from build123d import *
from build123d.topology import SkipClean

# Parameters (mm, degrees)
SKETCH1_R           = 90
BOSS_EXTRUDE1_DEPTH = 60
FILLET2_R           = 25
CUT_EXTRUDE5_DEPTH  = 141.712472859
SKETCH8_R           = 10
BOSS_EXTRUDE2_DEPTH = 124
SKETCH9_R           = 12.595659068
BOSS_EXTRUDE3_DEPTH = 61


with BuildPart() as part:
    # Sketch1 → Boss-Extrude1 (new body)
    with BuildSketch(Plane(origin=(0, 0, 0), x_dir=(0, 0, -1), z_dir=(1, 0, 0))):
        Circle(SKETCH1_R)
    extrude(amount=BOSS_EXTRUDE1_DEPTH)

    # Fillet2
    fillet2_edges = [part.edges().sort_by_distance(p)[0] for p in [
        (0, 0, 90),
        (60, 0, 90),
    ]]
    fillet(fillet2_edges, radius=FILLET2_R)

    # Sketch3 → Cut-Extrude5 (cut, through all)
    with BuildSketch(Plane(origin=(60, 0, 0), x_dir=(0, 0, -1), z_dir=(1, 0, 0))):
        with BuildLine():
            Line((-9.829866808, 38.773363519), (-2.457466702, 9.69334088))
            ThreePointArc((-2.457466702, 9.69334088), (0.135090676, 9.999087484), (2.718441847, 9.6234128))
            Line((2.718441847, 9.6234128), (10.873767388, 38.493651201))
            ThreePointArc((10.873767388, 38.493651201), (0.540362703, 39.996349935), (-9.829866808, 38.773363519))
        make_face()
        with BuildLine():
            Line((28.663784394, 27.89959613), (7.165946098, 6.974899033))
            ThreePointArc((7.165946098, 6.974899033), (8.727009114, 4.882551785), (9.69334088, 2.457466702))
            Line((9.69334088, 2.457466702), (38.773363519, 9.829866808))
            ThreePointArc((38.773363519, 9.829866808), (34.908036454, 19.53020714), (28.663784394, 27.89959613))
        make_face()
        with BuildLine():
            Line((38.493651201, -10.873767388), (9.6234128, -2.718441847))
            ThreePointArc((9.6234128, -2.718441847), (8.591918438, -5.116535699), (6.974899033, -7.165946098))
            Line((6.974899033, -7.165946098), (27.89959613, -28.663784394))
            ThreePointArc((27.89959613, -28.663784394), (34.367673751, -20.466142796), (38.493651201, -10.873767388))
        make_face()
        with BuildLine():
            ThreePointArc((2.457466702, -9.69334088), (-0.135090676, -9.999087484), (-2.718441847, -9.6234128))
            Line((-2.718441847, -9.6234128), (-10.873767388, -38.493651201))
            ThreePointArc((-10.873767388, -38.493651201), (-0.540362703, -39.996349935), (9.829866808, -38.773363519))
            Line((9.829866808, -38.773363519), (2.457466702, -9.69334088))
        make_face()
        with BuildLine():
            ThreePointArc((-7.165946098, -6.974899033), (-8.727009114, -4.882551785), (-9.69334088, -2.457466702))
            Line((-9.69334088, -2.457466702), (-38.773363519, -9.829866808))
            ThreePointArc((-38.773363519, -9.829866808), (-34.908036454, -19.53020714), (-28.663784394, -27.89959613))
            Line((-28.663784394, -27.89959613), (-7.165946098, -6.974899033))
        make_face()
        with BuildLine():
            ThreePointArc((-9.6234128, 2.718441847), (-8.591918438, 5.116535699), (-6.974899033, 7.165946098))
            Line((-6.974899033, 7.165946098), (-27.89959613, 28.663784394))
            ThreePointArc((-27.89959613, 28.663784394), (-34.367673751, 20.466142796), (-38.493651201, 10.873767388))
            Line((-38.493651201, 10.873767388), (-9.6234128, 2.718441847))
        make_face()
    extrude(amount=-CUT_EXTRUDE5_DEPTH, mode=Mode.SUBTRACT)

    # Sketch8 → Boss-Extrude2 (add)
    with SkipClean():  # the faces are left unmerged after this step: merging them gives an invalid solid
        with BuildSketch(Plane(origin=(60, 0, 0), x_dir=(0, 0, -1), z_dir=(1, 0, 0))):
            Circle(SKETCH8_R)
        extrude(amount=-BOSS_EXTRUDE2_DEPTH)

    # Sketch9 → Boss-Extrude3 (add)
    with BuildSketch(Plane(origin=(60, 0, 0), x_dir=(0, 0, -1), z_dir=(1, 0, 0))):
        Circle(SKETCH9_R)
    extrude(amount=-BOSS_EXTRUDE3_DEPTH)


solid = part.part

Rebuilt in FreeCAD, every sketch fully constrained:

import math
import FreeCAD as App
import Part
import Sketcher
from FreeCAD import Vector


def edges_at(feature, points):
    """Names of the edges that pass closest to the given points."""
    edges = feature.Shape.Edges
    near = lambda p: min(range(len(edges)), key=lambda i: edges[i].distToShape(Part.Vertex(*p))[0])
    return sorted({f"Edge{near(p) + 1}" for p in points})

doc = App.newDocument("Part")
body = doc.addObject("PartDesign::Body", "Body")

# Sketch on YZ plane
sketch1 = body.newObject("Sketcher::SketchObject", "Sketch")
sketch1.AttachmentSupport = (doc.getObject("YZ_Plane"), [""])
sketch1.MapMode = "FlatFace"
sketch1.addGeometry(Part.Circle(Vector(0, 0, 0), Vector(0, 0, 1), 90), False)
sketch1.addConstraint(Sketcher.Constraint("Coincident", 0, 3, -1, 1))
sketch1.addConstraint(Sketcher.Constraint("Diameter", 0, 180.0))
pad1 = body.newObject("PartDesign::Pad", "Pad")
pad1.Profile = sketch1
pad1.Length = 60
doc.recompute()

fillet = body.newObject("PartDesign::Fillet", "Fillet")
fillet.Base = (pad1, edges_at(pad1, [(0, 0, 90), (60, 0, 90)]))
fillet.Radius = 25

# Sketch on YZ plane
sketch2 = body.newObject("Sketcher::SketchObject", "Sketch001")
sketch2.AttachmentSupport = (doc.getObject("YZ_Plane"), [""])
sketch2.MapMode = "FlatFace"
sketch2.AttachmentOffset = App.Placement(Vector(0, 0, 60), App.Rotation())
sketch2.addGeometry(Part.LineSegment(Vector(39, 10, 0), Vector(10, 2, 0)), False)
sketch2.addGeometry(Part.ArcOfCircle(Part.Circle(Vector(0, 0, 0), Vector(0, 0, 1), 10), math.radians(-16), math.radians(14)), False)
sketch2.addGeometry(Part.LineSegment(Vector(10, -3, 0), Vector(38, -11, 0)), False)
sketch2.addGeometry(Part.ArcOfCircle(Part.Circle(Vector(0, 0, 0), Vector(0, 0, 1), 40), math.radians(-16), math.radians(14)), False)
sketch2.addGeometry(Part.LineSegment(Vector(28, -29, 0), Vector(7, -7, 0)), False)
sketch2.addGeometry(Part.ArcOfCircle(Part.Circle(Vector(0, 0, 0), Vector(0, 0, 1), 10), math.radians(-76), math.radians(-46)), False)
sketch2.addGeometry(Part.LineSegment(Vector(2, -10, 0), Vector(10, -39, 0)), False)
sketch2.addGeometry(Part.ArcOfCircle(Part.Circle(Vector(0, 0, 0), Vector(0, 0, 1), 40), math.radians(-76), math.radians(-46)), False)
sketch2.addGeometry(Part.LineSegment(Vector(-11, -38, 0), Vector(-3, -10, 0)), False)
sketch2.addGeometry(Part.ArcOfCircle(Part.Circle(Vector(0, 0, 0), Vector(0, 0, 1), 10), math.radians(-136), math.radians(-106)), False)
sketch2.addGeometry(Part.LineSegment(Vector(-7, -7, 0), Vector(-29, -28, 0)), False)
sketch2.addGeometry(Part.ArcOfCircle(Part.Circle(Vector(0, 0, 0), Vector(0, 0, 1), 40), math.radians(-136), math.radians(-106)), False)
sketch2.addGeometry(Part.ArcOfCircle(Part.Circle(Vector(0, 0, 0), Vector(0, 0, 1), 10), math.radians(164), math.radians(194)), False)
sketch2.addGeometry(Part.LineSegment(Vector(-10, 3, 0), Vector(-38, 11, 0)), False)
sketch2.addGeometry(Part.ArcOfCircle(Part.Circle(Vector(0, 0, 0), Vector(0, 0, 1), 40), math.radians(164), math.radians(194)), False)
sketch2.addGeometry(Part.LineSegment(Vector(-39, -10, 0), Vector(-10, -2, 0)), False)
sketch2.addGeometry(Part.ArcOfCircle(Part.Circle(Vector(0, 0, 0), Vector(0, 0, 1), 10), math.radians(104), math.radians(134)), False)
sketch2.addGeometry(Part.LineSegment(Vector(-2, 10, 0), Vector(-10, 39, 0)), False)
sketch2.addGeometry(Part.ArcOfCircle(Part.Circle(Vector(0, 0, 0), Vector(0, 0, 1), 40), math.radians(104), math.radians(134)), False)
sketch2.addGeometry(Part.LineSegment(Vector(-28, 29, 0), Vector(-7, 7, 0)), False)
sketch2.addGeometry(Part.ArcOfCircle(Part.Circle(Vector(0, 0, 0), Vector(0, 0, 1), 10), math.radians(44), math.radians(74)), False)
sketch2.addGeometry(Part.LineSegment(Vector(7, 7, 0), Vector(29, 28, 0)), False)
sketch2.addGeometry(Part.ArcOfCircle(Part.Circle(Vector(0, 0, 0), Vector(0, 0, 1), 40), math.radians(44), math.radians(74)), False)
sketch2.addGeometry(Part.LineSegment(Vector(11, 38, 0), Vector(3, 10, 0)), False)
sketch2.addConstraint(Sketcher.Constraint("Coincident", 0, 2, 1, 2))
sketch2.addConstraint(Sketcher.Constraint("Coincident", 1, 1, 2, 1))
sketch2.addConstraint(Sketcher.Constraint("Coincident", 2, 2, 3, 1))
sketch2.addConstraint(Sketcher.Constraint("Coincident", 3, 2, 0, 1))
sketch2.addConstraint(Sketcher.Constraint("Coincident", 4, 2, 5, 2))
sketch2.addConstraint(Sketcher.Constraint("Coincident", 5, 1, 6, 1))
sketch2.addConstraint(Sketcher.Constraint("Coincident", 6, 2, 7, 1))
sketch2.addConstraint(Sketcher.Constraint("Coincident", 7, 2, 4, 1))
sketch2.addConstraint(Sketcher.Constraint("Coincident", 8, 2, 9, 2))
sketch2.addConstraint(Sketcher.Constraint("Coincident", 9, 1, 10, 1))
sketch2.addConstraint(Sketcher.Constraint("Coincident", 10, 2, 11, 1))
sketch2.addConstraint(Sketcher.Constraint("Coincident", 11, 2, 8, 1))
sketch2.addConstraint(Sketcher.Constraint("Coincident", 12, 1, 13, 1))
sketch2.addConstraint(Sketcher.Constraint("Coincident", 13, 2, 14, 1))
sketch2.addConstraint(Sketcher.Constraint("Coincident", 14, 2, 15, 1))
sketch2.addConstraint(Sketcher.Constraint("Coincident", 15, 2, 12, 2))
sketch2.addConstraint(Sketcher.Constraint("Coincident", 16, 1, 17, 1))
sketch2.addConstraint(Sketcher.Constraint("Coincident", 17, 2, 18, 1))
sketch2.addConstraint(Sketcher.Constraint("Coincident", 18, 2, 19, 1))
sketch2.addConstraint(Sketcher.Constraint("Coincident", 19, 2, 16, 2))
sketch2.addConstraint(Sketcher.Constraint("Coincident", 20, 1, 21, 1))
sketch2.addConstraint(Sketcher.Constraint("Coincident", 21, 2, 22, 1))
sketch2.addConstraint(Sketcher.Constraint("Coincident", 22, 2, 23, 1))
sketch2.addConstraint(Sketcher.Constraint("Coincident", 23, 2, 20, 2))
sketch2.addConstraint(Sketcher.Constraint("Coincident", 1, 3, -1, 1))
sketch2.addConstraint(Sketcher.Constraint("Coincident", 3, 3, -1, 1))
sketch2.addConstraint(Sketcher.Constraint("Coincident", 5, 3, -1, 1))
sketch2.addConstraint(Sketcher.Constraint("Coincident", 7, 3, -1, 1))
sketch2.addConstraint(Sketcher.Constraint("Coincident", 9, 3, -1, 1))
sketch2.addConstraint(Sketcher.Constraint("Coincident", 11, 3, -1, 1))
sketch2.addConstraint(Sketcher.Constraint("Coincident", 12, 3, -1, 1))
sketch2.addConstraint(Sketcher.Constraint("Coincident", 14, 3, -1, 1))
sketch2.addConstraint(Sketcher.Constraint("Coincident", 16, 3, -1, 1))
sketch2.addConstraint(Sketcher.Constraint("Coincident", 18, 3, -1, 1))
sketch2.addConstraint(Sketcher.Constraint("Coincident", 20, 3, -1, 1))
sketch2.addConstraint(Sketcher.Constraint("Coincident", 22, 3, -1, 1))
sketch2.addConstraint(Sketcher.Constraint("Equal", 1, 5))
sketch2.addConstraint(Sketcher.Constraint("Equal", 3, 7))
sketch2.addConstraint(Sketcher.Constraint("Equal", 5, 9))
sketch2.addConstraint(Sketcher.Constraint("Equal", 7, 11))
sketch2.addConstraint(Sketcher.Constraint("Equal", 9, 12))
sketch2.addConstraint(Sketcher.Constraint("Equal", 11, 14))
sketch2.addConstraint(Sketcher.Constraint("Equal", 12, 16))
sketch2.addConstraint(Sketcher.Constraint("Equal", 14, 18))
sketch2.addConstraint(Sketcher.Constraint("Equal", 16, 20))
sketch2.addConstraint(Sketcher.Constraint("Equal", 18, 22))
sketch2.addConstraint(Sketcher.Constraint("Perpendicular", 0, 6))
sketch2.addConstraint(Sketcher.Constraint("Perpendicular", 2, 8))
sketch2.addConstraint(Sketcher.Constraint("Perpendicular", 4, 10))
sketch2.addConstraint(Sketcher.Constraint("Perpendicular", 8, 13))
sketch2.addConstraint(Sketcher.Constraint("Perpendicular", 6, 15))
sketch2.addConstraint(Sketcher.Constraint("Perpendicular", 15, 17))
sketch2.addConstraint(Sketcher.Constraint("Perpendicular", 10, 19))
sketch2.addConstraint(Sketcher.Constraint("Perpendicular", 19, 21))
sketch2.addConstraint(Sketcher.Constraint("Perpendicular", 13, 23))
sketch2.addConstraint(Sketcher.Constraint("Radius", 1, 10.0))
sketch2.addConstraint(Sketcher.Constraint("Radius", 3, 40.0))
sketch2.addConstraint(Sketcher.Constraint("DistanceX", -1, 1, 4, 2, 6.974899))
sketch2.addConstraint(Sketcher.Constraint("DistanceY", 9, 1, -1, 1, 6.974899))
sketch2.addConstraint(Sketcher.Constraint("DistanceX", 19, 2, -1, 1, 6.974899))
sketch2.addConstraint(Sketcher.Constraint("DistanceY", -1, 1, 20, 1, 6.974899))
sketch2.addConstraint(Sketcher.Constraint("DistanceY", 0, 2, 3, 2, 7.3724))
sketch2.addConstraint(Sketcher.Constraint("DistanceX", -1, 1, 0, 2, 9.693341))
sketch2.addConstraint(Sketcher.Constraint("DistanceY", 1, 1, -1, 1, 2.718442))
sketch2.addConstraint(Sketcher.Constraint("DistanceX", -1, 1, 2, 2, 38.493651))
sketch2.addConstraint(Sketcher.Constraint("DistanceY", 5, 1, -1, 1, 9.693341))
sketch2.addConstraint(Sketcher.Constraint("DistanceX", 8, 2, -1, 1, 2.718442))
sketch2.addConstraint(Sketcher.Constraint("DistanceY", -1, 1, 12, 1, 2.718442))
sketch2.addConstraint(Sketcher.Constraint("DistanceX", 15, 2, -1, 1, 9.693341))
sketch2.addConstraint(Sketcher.Constraint("DistanceY", -1, 1, 16, 1, 9.693341))
sketch2.addConstraint(Sketcher.Constraint("DistanceY", -1, 1, 22, 2, 38.493651))
sketch2.addConstraint(Sketcher.Constraint("DistanceX", 6, 2, 7, 2, 18.069729))
pocket1 = body.newObject("PartDesign::Pocket", "Pocket")
pocket1.Profile = sketch2
pocket1.Type = "ThroughAll"

# Sketch on YZ plane
sketch3 = body.newObject("Sketcher::SketchObject", "Sketch002")
sketch3.AttachmentSupport = (doc.getObject("YZ_Plane"), [""])
sketch3.MapMode = "FlatFace"
sketch3.AttachmentOffset = App.Placement(Vector(0, 0, 60), App.Rotation())
sketch3.addGeometry(Part.Circle(Vector(0, 0, 0), Vector(0, 0, 1), 10), False)
sketch3.addConstraint(Sketcher.Constraint("Coincident", 0, 3, -1, 1))
sketch3.addConstraint(Sketcher.Constraint("Diameter", 0, 20.0))
pad2 = body.newObject("PartDesign::Pad", "Pad001")
pad2.Profile = sketch3
pad2.Length = 124
pad2.Reversed = True

# Sketch on YZ plane
sketch4 = body.newObject("Sketcher::SketchObject", "Sketch003")
sketch4.AttachmentSupport = (doc.getObject("YZ_Plane"), [""])
sketch4.MapMode = "FlatFace"
sketch4.AttachmentOffset = App.Placement(Vector(0, 0, 60), App.Rotation())
sketch4.addGeometry(Part.Circle(Vector(0, 0, 0), Vector(0, 0, 1), 13), False)
sketch4.addConstraint(Sketcher.Constraint("Coincident", 0, 3, -1, 1))
sketch4.addConstraint(Sketcher.Constraint("Diameter", 0, 25.191318))
pad3 = body.newObject("PartDesign::Pad", "Pad002")
pad3.Profile = sketch4
pad3.Length = 61
pad3.Reversed = True

doc.recompute()
